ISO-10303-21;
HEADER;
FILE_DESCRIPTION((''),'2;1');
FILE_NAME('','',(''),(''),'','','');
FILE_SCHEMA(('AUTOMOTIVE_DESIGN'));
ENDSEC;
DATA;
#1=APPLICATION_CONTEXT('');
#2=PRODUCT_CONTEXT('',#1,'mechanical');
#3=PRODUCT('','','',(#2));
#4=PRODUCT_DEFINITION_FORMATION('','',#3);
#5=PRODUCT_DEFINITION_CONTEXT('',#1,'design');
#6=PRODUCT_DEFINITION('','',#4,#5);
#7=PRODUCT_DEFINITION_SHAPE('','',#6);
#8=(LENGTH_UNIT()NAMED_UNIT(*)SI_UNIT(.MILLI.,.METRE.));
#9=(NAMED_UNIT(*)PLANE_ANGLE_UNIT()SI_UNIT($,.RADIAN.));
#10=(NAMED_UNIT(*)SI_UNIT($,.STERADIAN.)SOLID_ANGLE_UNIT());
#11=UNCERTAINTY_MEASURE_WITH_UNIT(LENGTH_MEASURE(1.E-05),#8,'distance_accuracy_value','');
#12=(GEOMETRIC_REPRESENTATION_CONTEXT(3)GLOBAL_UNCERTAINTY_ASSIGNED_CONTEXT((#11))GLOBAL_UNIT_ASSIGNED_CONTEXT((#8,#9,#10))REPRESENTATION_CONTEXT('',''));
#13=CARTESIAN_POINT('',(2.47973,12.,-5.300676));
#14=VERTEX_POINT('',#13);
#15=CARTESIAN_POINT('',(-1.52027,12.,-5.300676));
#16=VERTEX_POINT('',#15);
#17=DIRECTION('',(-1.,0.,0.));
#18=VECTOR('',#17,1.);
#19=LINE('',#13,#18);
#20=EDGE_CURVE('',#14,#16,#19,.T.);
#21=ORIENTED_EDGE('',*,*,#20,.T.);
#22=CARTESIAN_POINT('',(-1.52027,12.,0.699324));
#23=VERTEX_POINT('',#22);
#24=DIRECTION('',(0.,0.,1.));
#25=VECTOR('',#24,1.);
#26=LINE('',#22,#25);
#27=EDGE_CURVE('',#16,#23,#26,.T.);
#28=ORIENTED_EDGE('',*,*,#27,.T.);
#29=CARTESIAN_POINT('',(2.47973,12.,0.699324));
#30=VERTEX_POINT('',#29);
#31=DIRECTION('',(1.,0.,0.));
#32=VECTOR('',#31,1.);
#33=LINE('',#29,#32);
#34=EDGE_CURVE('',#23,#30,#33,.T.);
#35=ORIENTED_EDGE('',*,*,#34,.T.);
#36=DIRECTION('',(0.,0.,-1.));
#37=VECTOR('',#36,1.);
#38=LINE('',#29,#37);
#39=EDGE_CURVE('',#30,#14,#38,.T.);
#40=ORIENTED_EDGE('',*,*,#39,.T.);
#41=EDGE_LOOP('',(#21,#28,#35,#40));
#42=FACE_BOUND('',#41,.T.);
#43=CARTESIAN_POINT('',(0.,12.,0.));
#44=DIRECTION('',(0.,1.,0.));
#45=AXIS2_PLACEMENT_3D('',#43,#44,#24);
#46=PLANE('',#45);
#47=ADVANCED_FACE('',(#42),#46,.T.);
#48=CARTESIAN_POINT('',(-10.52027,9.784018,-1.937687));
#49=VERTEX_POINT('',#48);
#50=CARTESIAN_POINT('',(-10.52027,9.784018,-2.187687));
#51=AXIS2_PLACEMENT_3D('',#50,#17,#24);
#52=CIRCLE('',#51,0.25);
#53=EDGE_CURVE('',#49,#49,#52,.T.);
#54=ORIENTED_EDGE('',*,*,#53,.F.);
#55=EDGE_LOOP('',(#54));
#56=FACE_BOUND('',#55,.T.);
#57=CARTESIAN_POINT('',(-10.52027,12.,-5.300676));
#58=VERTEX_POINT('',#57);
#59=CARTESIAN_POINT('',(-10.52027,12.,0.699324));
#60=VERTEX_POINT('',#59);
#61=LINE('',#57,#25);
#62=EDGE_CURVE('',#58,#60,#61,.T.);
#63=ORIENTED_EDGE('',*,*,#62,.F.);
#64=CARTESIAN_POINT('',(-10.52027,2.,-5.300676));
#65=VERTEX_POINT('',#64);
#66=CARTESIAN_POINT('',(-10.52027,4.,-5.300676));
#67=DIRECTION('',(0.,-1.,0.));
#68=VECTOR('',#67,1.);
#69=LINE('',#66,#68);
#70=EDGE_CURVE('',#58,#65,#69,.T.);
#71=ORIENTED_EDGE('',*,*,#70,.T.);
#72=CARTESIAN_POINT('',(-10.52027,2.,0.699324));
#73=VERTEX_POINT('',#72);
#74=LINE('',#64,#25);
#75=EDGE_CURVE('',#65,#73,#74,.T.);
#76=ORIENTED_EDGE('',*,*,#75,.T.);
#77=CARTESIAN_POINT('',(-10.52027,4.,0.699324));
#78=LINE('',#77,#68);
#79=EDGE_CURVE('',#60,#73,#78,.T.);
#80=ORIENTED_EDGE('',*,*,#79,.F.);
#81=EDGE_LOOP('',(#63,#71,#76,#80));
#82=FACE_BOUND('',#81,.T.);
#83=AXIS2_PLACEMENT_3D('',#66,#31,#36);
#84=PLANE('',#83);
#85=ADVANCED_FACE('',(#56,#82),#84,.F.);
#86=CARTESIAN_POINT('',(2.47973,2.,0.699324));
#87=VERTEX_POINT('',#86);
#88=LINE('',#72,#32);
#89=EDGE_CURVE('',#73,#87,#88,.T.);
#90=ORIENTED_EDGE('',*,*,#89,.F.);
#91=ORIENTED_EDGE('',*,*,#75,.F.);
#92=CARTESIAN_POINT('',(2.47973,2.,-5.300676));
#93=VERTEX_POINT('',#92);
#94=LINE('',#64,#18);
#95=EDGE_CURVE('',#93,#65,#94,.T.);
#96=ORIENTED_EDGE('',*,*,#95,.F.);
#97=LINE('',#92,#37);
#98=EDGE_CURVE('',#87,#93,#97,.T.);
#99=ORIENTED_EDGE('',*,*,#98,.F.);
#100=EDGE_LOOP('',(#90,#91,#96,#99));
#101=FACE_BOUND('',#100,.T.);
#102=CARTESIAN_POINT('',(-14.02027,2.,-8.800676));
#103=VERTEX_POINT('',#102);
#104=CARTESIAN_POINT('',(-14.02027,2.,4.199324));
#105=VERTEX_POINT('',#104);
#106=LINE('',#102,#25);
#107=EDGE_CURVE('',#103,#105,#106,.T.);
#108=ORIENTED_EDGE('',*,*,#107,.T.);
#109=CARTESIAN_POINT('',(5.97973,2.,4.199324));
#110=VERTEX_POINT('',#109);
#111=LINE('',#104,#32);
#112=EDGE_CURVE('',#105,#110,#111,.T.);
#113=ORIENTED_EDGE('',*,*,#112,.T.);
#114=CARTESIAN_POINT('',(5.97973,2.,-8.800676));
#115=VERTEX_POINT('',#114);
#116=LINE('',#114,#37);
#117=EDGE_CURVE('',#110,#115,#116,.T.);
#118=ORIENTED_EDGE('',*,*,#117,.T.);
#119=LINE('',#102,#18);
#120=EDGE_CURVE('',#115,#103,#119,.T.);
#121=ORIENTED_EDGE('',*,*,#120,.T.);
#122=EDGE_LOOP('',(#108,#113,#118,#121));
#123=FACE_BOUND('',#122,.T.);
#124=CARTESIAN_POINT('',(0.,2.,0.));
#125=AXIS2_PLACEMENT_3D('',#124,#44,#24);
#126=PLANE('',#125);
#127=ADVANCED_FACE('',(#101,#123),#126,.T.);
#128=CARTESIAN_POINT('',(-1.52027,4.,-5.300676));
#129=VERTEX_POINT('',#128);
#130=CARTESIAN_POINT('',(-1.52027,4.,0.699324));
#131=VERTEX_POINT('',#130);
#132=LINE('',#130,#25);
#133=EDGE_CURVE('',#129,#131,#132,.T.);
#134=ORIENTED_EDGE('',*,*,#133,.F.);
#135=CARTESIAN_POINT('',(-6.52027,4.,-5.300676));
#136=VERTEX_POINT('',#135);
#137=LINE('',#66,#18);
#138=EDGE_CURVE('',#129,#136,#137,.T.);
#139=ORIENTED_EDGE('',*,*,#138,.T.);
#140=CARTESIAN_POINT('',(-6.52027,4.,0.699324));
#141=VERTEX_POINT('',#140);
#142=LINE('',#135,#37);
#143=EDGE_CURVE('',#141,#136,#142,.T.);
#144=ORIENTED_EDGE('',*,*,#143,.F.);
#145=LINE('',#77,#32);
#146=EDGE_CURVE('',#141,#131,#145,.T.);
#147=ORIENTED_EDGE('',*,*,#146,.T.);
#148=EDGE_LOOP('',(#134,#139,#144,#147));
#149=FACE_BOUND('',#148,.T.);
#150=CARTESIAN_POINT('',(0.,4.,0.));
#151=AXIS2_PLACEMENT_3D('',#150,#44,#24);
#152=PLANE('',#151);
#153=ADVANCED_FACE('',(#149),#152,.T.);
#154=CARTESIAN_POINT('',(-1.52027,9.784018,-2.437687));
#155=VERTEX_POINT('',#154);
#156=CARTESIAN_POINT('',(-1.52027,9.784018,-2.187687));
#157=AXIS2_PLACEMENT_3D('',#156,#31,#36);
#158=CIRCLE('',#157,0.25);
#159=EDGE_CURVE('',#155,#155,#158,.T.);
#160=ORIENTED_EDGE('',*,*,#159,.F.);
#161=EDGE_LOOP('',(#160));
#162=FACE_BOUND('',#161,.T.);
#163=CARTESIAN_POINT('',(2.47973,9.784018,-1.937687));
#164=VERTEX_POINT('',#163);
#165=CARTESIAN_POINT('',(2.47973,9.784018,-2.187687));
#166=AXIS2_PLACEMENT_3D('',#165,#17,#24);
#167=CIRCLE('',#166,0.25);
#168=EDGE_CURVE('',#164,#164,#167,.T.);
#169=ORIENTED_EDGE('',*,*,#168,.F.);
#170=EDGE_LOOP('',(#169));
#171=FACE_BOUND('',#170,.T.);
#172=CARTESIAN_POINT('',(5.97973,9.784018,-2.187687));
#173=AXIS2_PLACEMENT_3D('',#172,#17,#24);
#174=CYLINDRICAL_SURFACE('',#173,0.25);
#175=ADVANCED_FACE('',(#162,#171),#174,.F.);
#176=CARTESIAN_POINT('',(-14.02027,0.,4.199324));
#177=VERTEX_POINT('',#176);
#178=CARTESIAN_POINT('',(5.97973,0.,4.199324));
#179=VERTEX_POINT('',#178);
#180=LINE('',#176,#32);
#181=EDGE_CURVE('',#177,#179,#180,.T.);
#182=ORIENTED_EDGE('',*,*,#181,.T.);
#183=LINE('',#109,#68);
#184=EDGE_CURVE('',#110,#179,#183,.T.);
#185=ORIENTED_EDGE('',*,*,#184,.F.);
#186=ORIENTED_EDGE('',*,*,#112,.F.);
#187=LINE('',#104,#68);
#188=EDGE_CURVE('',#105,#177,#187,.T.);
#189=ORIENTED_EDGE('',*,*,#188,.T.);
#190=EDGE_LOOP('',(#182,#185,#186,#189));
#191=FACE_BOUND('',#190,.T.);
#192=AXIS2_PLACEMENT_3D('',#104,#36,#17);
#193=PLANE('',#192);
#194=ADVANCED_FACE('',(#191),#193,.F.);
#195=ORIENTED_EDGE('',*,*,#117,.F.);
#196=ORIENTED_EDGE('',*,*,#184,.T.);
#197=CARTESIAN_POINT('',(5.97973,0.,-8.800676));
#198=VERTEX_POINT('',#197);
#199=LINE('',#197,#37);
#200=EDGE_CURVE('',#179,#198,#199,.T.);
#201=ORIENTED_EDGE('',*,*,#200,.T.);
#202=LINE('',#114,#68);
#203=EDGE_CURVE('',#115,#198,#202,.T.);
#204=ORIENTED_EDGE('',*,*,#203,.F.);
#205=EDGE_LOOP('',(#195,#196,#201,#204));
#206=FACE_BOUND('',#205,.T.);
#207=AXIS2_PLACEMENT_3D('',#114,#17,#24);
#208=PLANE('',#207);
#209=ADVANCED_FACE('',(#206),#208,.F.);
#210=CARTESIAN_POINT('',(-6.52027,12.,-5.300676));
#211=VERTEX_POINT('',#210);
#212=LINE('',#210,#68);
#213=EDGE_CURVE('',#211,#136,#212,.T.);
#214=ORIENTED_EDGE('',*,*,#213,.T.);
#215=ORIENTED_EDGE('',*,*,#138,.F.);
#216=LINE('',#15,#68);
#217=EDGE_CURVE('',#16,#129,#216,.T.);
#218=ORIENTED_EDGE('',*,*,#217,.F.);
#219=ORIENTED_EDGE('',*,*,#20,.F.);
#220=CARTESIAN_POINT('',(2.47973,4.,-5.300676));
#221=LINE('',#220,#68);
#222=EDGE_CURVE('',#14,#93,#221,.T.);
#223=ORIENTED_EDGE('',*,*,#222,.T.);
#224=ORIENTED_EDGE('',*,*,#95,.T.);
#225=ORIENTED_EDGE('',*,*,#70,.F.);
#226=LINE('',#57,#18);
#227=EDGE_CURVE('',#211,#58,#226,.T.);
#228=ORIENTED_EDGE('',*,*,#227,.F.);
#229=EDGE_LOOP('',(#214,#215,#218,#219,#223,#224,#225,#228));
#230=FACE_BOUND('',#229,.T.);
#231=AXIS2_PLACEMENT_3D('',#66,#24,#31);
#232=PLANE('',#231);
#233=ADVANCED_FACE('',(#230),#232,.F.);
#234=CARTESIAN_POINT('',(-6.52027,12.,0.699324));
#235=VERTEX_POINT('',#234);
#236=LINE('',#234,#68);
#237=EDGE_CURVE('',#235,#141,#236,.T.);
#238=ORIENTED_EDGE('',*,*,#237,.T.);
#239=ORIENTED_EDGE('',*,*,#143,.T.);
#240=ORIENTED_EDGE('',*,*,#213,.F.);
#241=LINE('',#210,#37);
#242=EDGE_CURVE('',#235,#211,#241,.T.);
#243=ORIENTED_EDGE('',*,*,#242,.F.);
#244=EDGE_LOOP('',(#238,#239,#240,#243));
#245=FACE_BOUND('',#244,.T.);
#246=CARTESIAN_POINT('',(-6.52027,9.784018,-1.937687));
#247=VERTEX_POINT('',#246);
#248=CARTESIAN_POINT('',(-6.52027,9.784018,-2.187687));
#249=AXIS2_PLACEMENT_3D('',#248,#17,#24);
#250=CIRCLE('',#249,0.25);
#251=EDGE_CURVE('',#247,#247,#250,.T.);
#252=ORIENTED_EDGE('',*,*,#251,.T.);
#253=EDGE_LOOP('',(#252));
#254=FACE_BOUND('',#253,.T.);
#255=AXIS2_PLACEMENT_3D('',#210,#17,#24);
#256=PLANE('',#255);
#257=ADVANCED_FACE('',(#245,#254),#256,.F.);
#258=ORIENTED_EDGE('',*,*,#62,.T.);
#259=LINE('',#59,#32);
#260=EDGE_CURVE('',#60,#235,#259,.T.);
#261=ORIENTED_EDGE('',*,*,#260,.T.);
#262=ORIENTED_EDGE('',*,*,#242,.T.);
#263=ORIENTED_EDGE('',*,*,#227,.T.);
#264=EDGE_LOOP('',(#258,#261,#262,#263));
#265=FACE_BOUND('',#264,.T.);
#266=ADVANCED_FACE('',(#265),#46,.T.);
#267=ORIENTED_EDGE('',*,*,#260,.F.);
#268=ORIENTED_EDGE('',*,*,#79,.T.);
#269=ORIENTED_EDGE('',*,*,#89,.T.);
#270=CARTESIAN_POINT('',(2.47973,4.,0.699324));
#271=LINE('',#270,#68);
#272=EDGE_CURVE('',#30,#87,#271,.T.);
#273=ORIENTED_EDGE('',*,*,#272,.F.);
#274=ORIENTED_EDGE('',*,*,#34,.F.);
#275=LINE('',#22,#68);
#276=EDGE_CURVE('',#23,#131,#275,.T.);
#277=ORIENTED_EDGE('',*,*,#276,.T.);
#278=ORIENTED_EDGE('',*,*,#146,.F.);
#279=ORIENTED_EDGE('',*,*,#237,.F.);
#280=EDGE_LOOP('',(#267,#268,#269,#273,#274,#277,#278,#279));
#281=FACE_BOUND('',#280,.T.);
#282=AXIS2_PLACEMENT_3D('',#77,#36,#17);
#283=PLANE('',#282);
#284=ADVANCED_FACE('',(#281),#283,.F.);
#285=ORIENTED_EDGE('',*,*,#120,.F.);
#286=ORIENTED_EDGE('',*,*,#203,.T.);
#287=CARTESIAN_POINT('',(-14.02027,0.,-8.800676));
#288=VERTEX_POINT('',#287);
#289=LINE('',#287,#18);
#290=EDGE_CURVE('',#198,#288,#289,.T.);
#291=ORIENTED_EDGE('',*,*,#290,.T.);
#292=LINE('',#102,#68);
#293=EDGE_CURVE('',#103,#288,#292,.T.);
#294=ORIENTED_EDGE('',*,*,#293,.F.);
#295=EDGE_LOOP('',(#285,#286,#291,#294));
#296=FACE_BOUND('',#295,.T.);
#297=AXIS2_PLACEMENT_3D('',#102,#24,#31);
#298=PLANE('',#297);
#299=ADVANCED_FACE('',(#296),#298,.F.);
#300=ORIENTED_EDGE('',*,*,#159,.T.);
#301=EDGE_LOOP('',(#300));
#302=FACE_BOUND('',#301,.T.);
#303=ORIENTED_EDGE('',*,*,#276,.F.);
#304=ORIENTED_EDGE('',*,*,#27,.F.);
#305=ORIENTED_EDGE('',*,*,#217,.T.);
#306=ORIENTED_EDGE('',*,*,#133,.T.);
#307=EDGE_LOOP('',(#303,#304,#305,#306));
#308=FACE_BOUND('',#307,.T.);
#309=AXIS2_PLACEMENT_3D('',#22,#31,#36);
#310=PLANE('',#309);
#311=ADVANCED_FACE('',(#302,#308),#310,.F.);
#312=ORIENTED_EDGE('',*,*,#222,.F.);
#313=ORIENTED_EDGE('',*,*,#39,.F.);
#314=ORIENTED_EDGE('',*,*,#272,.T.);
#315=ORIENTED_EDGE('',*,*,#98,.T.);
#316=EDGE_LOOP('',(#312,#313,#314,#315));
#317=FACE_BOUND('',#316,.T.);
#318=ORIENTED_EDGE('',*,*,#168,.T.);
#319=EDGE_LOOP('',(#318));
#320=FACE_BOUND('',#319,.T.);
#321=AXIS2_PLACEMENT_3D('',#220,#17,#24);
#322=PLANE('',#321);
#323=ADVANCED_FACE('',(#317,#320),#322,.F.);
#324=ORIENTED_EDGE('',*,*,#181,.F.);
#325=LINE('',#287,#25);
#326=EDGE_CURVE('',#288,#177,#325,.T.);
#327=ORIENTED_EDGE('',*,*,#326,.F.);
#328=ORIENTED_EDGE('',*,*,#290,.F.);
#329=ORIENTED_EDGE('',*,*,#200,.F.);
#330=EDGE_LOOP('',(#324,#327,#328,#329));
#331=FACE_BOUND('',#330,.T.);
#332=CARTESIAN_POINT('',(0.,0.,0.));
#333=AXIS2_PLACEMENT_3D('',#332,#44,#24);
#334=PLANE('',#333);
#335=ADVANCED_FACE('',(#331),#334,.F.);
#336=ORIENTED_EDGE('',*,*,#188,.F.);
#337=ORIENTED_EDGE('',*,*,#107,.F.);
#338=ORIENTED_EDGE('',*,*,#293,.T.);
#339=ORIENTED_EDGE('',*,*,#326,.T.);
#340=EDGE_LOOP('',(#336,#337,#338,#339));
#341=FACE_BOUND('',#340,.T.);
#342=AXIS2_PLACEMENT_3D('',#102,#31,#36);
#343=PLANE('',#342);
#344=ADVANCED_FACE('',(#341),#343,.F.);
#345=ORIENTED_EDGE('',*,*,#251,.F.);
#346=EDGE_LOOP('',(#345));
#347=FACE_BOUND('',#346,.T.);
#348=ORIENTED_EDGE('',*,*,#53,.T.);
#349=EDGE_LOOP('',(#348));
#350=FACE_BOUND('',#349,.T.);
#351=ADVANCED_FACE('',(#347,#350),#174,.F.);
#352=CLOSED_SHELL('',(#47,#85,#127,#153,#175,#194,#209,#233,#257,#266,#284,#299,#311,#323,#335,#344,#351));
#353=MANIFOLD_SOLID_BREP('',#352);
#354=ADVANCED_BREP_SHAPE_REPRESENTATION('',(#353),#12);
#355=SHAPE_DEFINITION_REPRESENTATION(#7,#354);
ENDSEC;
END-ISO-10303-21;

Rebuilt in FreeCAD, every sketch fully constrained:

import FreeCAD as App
import Part
import Sketcher
Q = App.Units.Quantity


def add_polygon(sketch, points):
    """Adds a closed chain of lines whose ends are joined by coincident constraints."""
    first, n = sketch.GeometryCount, len(points)
    for a, b in zip(points, points[1:] + points[:1]):
        sketch.addGeometry(Part.LineSegment(App.Vector(*a, 0), App.Vector(*b, 0)), False)
    for i in range(n):
        sketch.addConstraint(Sketcher.Constraint("Coincident", first + i, 2, first + (i + 1) % n, 1))

doc = App.newDocument("Part")
body = doc.addObject("PartDesign::Body", "Body")

sketch1 = doc.addObject("Sketcher::SketchObject", "Sketch")
body.addObject(sketch1)
sketch1.AttachmentSupport = (doc.XZ_Plane, [""])
sketch1.MapMode = "FlatFace"
add_polygon(sketch1, [(-14, -9), (-14, 4), (6, 4), (6, -9)])
sketch1.addConstraint([
    Sketcher.Constraint("Vertical", 0),
    Sketcher.Constraint("Horizontal", 1),
    Sketcher.Constraint("Vertical", 2),
    Sketcher.Constraint("Horizontal", 3),
    Sketcher.Constraint("DistanceX", 1, 1, 1, 2, Q("20 mm")),
    Sketcher.Constraint("DistanceY", 0, 1, 0, 2, Q("13 mm")),
    Sketcher.Constraint("DistanceX", 0, 2, -1, 1, Q("14.02027 mm")),
    Sketcher.Constraint("DistanceY", -1, 1, 0, 2, Q("4.199324 mm")),
])
pad1 = doc.addObject("PartDesign::Pad", "Pad")
body.addObject(pad1)
pad1.Profile = sketch1
pad1.Length = 2
pad1.Reversed = True

sketch2 = doc.addObject("Sketcher::SketchObject", "Sketch001")
body.addObject(sketch2)
sketch2.AttachmentSupport = (doc.XZ_Plane, [""])
sketch2.MapMode = "FlatFace"
sketch2.AttachmentOffset = App.Placement(App.Vector(0, 0, -2), App.Rotation())
add_polygon(sketch2, [(-11, -5), (-11, 1), (2, 1), (2, -5)])
sketch2.addConstraint([
    Sketcher.Constraint("Vertical", 0),
    Sketcher.Constraint("Horizontal", 1),
    Sketcher.Constraint("Vertical", 2),
    Sketcher.Constraint("Horizontal", 3),
    Sketcher.Constraint("DistanceX", 1, 1, 1, 2, Q("13 mm")),
    Sketcher.Constraint("DistanceY", 0, 1, 0, 2, Q("6 mm")),
    Sketcher.Constraint("DistanceX", 0, 2, -1, 1, Q("10.52027 mm")),
    Sketcher.Constraint("DistanceY", -1, 1, 0, 2, Q("0.699324 mm")),
])
pad2 = doc.addObject("PartDesign::Pad", "Pad001")
body.addObject(pad2)
pad2.Profile = sketch2
pad2.Length = 2
pad2.Reversed = True

sketch3 = doc.addObject("Sketcher::SketchObject", "Sketch002")
body.addObject(sketch3)
sketch3.AttachmentSupport = (doc.XZ_Plane, [""])
sketch3.MapMode = "FlatFace"
sketch3.AttachmentOffset = App.Placement(App.Vector(0, 0, -4), App.Rotation())
add_polygon(sketch3, [(-10.5, -5.3), (-10.5, 0.7), (-6.5, 0.7), (-6.5, -5.3)])
add_polygon(sketch3, [(-1.5, -5.3), (-1.5, 0.7), (2.5, 0.7), (2.5, -5.3)])
sketch3.addConstraint([
    Sketcher.Constraint("Vertical", 0),
    Sketcher.Constraint("Horizontal", 1),
    Sketcher.Constraint("Vertical", 2),
    Sketcher.Constraint("Horizontal", 3),
    Sketcher.Constraint("Vertical", 4),
    Sketcher.Constraint("Horizontal", 5),
    Sketcher.Constraint("Vertical", 6),
    Sketcher.Constraint("Horizontal", 7),
    Sketcher.Constraint("Horizontal", 1, 2, 4, 2),
    Sketcher.Constraint("Horizontal", 3, 2, 6, 2),
    Sketcher.Constraint("Equal", 3, 5),
    Sketcher.Constraint("DistanceX", 1, 1, 1, 2, Q("4 mm")),
    Sketcher.Constraint("DistanceY", 0, 1, 0, 2, Q("6 mm")),
    Sketcher.Constraint("DistanceX", 1, 2, 4, 2, Q("5 mm")),
    Sketcher.Constraint("DistanceX", 0, 2, -1, 1, Q("10.52027 mm")),
    Sketcher.Constraint("DistanceY", -1, 1, 0, 2, Q("0.699324 mm")),
])
pad3 = doc.addObject("PartDesign::Pad", "Pad002")
body.addObject(pad3)
pad3.Profile = sketch3
pad3.Length = 8
pad3.Reversed = True

sketch4 = doc.addObject("Sketcher::SketchObject", "Sketch003")
body.addObject(sketch4)
sketch4.AttachmentSupport = (doc.YZ_Plane, [""])
sketch4.MapMode = "FlatFace"
sketch4.AttachmentOffset = App.Placement(App.Vector(0, 0, -10.52027), App.Rotation())
sketch4.addGeometry(Part.Circle(App.Vector(9.78, -2.19, 0), App.Vector(0, 0, 1), 0.25), False)
sketch4.addConstraint([
    Sketcher.Constraint("Diameter", 0, Q("0.5 mm")),
    Sketcher.Constraint("DistanceX", -1, 1, 0, 3, Q("9.784018 mm")),
    Sketcher.Constraint("DistanceY", 0, 3, -1, 1, Q("2.187687 mm")),
])
pocket1 = doc.addObject("PartDesign::Pocket", "Pocket")
body.addObject(pocket1)
pocket1.Profile = sketch4
pocket1.Type = "ThroughAll"
pocket1.Reversed = True

doc.recompute()
